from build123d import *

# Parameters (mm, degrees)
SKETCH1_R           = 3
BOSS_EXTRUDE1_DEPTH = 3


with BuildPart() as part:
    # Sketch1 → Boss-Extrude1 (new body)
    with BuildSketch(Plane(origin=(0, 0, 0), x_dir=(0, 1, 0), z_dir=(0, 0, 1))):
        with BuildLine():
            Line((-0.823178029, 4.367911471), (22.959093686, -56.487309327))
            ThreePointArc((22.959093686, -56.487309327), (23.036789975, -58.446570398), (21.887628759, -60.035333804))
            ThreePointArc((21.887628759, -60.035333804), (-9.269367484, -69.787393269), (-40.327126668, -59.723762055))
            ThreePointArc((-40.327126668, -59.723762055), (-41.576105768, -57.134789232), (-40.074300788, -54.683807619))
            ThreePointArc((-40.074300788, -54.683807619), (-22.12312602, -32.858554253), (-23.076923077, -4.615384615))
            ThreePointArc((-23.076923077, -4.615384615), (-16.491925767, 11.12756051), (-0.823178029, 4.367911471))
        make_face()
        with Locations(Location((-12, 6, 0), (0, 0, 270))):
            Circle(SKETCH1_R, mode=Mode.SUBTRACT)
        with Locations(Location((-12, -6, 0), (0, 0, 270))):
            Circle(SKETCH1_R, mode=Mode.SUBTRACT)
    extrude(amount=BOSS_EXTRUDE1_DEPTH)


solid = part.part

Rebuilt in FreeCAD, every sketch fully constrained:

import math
import FreeCAD as App
import Part
import Sketcher
from FreeCAD import Vector

doc = App.newDocument("Part")
body = doc.addObject("PartDesign::Body", "Body")

sketch1 = doc.addObject("Sketcher::SketchObject", "Sketch")
body.addObject(sketch1)
sketch1.AttachmentSupport = (doc.XY_Plane, [""])
sketch1.MapMode = "FlatFace"
sketch1.addGeometry(Part.LineSegment(Vector(56.5, 23, 0), Vector(-4.4, -0.8, 0)), False)
sketch1.addGeometry(Part.ArcOfCircle(Part.Circle(Vector(0, -12, 0), Vector(0, 0, 1), 12), math.radians(111), math.radians(293)), False)
sketch1.addGeometry(Part.ArcOfCircle(Part.Circle(Vector(20, -60, 0), Vector(0, 0, 1), 40), math.radians(30), math.radians(113)), False)
sketch1.addGeometry(Part.ArcOfCircle(Part.Circle(Vector(57.3, -38.6, 0), Vector(0, 0, 1), 3), math.radians(-150), math.radians(-36)), False)
sketch1.addGeometry(Part.ArcOfCircle(Part.Circle(Vector(16, -9, 0), Vector(0, 0, 1), 53.8), math.radians(-36), math.radians(35)), False)
sketch1.addGeometry(Part.ArcOfCircle(Part.Circle(Vector(57.6, 20.2, 0), Vector(0, 0, 1), 3), math.radians(35), math.radians(111)), False)
sketch1.addGeometry(Part.Circle(Vector(6, -12, 0), Vector(0, 0, 1), 3), False)
sketch1.addGeometry(Part.Circle(Vector(-6, -12, 0), Vector(0, 0, 1), 3), False)
sketch1.addConstraint(Sketcher.Constraint("Tangent", 0, 2, 1, 1))
sketch1.addConstraint(Sketcher.Constraint("Tangent", 1, 2, 2, 2))
sketch1.addConstraint(Sketcher.Constraint("Tangent", 2, 1, 3, 1))
sketch1.addConstraint(Sketcher.Constraint("Tangent", 3, 2, 4, 1))
sketch1.addConstraint(Sketcher.Constraint("Tangent", 4, 2, 5, 1))
sketch1.addConstraint(Sketcher.Constraint("Tangent", 5, 2, 0, 1))
sketch1.addConstraint(Sketcher.Constraint("Equal", 3, 5))
sketch1.addConstraint(Sketcher.Constraint("Equal", 5, 6))
sketch1.addConstraint(Sketcher.Constraint("Equal", 6, 7))
sketch1.addConstraint(Sketcher.Constraint("Symmetric", 6, 3, 7, 3, -2))
sketch1.addConstraint(Sketcher.Constraint("PointOnObject", 1, 3, -2))
sketch1.addConstraint(Sketcher.Constraint("Horizontal", 1, 3, 6, 3))
sketch1.addConstraint(Sketcher.Constraint("Diameter", 6, 6.0))
sketch1.addConstraint(Sketcher.Constraint("Radius", 1, 12.0))
sketch1.addConstraint(Sketcher.Constraint("Radius", 2, 40.0))
sketch1.addConstraint(Sketcher.Constraint("DistanceY", 1, 3, -1, 1, 12.0))
sketch1.addConstraint(Sketcher.Constraint("DistanceX", -1, 1, 2, 3, 20.0))
sketch1.addConstraint(Sketcher.Constraint("DistanceX", -1, 1, 4, 3, 16.0))
sketch1.addConstraint(Sketcher.Constraint("DistanceY", 4, 3, -1, 1, 9.0))
sketch1.addConstraint(Sketcher.Constraint("DistanceX", -1, 1, 6, 3, 6.0))
sketch1.addConstraint(Sketcher.Constraint("Radius", 4, 53.788068))
sketch1.addConstraint(Sketcher.Constraint("DistanceY", -1, 1, 5, 3, 20.164888))
pad1 = doc.addObject("PartDesign::Pad", "Pad")
body.addObject(pad1)
pad1.Profile = sketch1
pad1.Length = 3

doc.recompute()
